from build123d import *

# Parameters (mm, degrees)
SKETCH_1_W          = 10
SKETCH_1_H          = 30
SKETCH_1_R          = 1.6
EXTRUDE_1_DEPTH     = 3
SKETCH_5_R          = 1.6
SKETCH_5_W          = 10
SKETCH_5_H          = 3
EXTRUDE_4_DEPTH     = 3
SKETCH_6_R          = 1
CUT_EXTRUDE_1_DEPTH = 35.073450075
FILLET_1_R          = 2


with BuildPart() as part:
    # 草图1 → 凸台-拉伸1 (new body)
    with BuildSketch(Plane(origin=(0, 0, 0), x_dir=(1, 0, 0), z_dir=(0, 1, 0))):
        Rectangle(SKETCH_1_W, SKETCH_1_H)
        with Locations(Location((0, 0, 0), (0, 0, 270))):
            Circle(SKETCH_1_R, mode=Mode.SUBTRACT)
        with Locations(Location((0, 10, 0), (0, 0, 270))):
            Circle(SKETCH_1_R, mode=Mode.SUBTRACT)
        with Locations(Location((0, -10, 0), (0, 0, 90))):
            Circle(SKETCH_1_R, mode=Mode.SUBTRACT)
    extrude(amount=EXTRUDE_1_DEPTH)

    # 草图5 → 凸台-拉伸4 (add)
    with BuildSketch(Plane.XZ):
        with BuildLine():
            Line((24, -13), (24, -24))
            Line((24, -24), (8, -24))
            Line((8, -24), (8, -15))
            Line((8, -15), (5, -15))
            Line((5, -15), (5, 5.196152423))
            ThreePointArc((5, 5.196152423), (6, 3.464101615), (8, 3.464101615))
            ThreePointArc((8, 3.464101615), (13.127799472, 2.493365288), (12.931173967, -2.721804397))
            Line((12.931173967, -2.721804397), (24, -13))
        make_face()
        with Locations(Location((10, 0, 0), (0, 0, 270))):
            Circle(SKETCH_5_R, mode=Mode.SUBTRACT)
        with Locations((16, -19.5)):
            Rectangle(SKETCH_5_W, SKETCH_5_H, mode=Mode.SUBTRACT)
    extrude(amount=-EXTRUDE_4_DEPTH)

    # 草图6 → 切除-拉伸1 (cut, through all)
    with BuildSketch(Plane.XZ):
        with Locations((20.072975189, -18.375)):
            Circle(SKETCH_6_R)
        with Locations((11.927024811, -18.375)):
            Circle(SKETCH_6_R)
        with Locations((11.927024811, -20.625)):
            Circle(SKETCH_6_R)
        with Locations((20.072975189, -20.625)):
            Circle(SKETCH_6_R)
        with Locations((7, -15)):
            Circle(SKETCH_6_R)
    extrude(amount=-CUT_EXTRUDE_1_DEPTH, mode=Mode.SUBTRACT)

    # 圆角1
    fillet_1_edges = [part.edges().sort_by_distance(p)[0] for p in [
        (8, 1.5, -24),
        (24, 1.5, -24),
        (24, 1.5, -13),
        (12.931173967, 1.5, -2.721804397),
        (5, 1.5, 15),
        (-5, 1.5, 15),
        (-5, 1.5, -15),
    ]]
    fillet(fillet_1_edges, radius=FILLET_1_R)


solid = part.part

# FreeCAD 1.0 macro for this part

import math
import FreeCAD as App
import Part
import Sketcher

V = App.Vector
Q = App.Units.Quantity


def edges_at(feature, points):
    """Names of the edges that pass closest to the given points."""
    edges = feature.Shape.Edges
    near = lambda p: min(range(len(edges)), key=lambda i: edges[i].distToShape(Part.Vertex(*p))[0])
    return sorted({f"Edge{near(p) + 1}" for p in points})

doc = App.newDocument("Part")
body = doc.addObject("PartDesign::Body", "Body")

# Sketch on XZ plane
sketch1 = doc.addObject("Sketcher::SketchObject", "Sketch")
body.addObject(sketch1)
sketch1.AttachmentSupport = (doc.XZ_Plane, [""])
sketch1.MapMode = "FlatFace"
sketch1.addGeometry(Part.LineSegment(V(-5, -15, 0), V(-5, 15, 0)), False)
sketch1.addGeometry(Part.LineSegment(V(-5, 15, 0), V(5, 15, 0)), False)
sketch1.addGeometry(Part.LineSegment(V(5, 15, 0), V(5, -15, 0)), False)
sketch1.addGeometry(Part.LineSegment(V(5, -15, 0), V(-5, -15, 0)), False)
sketch1.addGeometry(Part.Circle(V(0, 10, 0), V(0, 0, 1), 1.6), False)
sketch1.addGeometry(Part.Circle(V(0, 0, 0), V(0, 0, 1), 1.6), False)
sketch1.addGeometry(Part.Circle(V(0, -10, 0), V(0, 0, 1), 1.6), False)
sketch1.addConstraint(Sketcher.Constraint("Coincident", 0, 2, 1, 1))
sketch1.addConstraint(Sketcher.Constraint("Coincident", 1, 2, 2, 1))
sketch1.addConstraint(Sketcher.Constraint("Coincident", 2, 2, 3, 1))
sketch1.addConstraint(Sketcher.Constraint("Coincident", 3, 2, 0, 1))
sketch1.addConstraint(Sketcher.Constraint("Vertical", 0))
sketch1.addConstraint(Sketcher.Constraint("Horizontal", 1))
sketch1.addConstraint(Sketcher.Constraint("Vertical", 2))
sketch1.addConstraint(Sketcher.Constraint("Horizontal", 3))
sketch1.addConstraint(Sketcher.Constraint("Coincident", 5, 3, -1, 1))
sketch1.addConstraint(Sketcher.Constraint("Equal", 4, 5))
sketch1.addConstraint(Sketcher.Constraint("Equal", 5, 6))
sketch1.addConstraint(Sketcher.Constraint("Symmetric", 4, 3, 6, 3, -1, 1))
sketch1.addConstraint(Sketcher.Constraint("Symmetric", 0, 2, 2, 2, -1, 1))
sketch1.addConstraint(Sketcher.Constraint("PointOnObject", 4, 3, -2))
sketch1.addConstraint(Sketcher.Constraint("Diameter", 4, Q("3.2 mm")))
sketch1.addConstraint(Sketcher.Constraint("DistanceX", 1, 1, 1, 2, Q("10 mm")))
sketch1.addConstraint(Sketcher.Constraint("DistanceY", 0, 1, 0, 2, Q("30 mm")))
sketch1.addConstraint(Sketcher.Constraint("DistanceY", -1, 1, 4, 3, Q("10 mm")))
pad1 = doc.addObject("PartDesign::Pad", "Pad")
body.addObject(pad1)
pad1.Profile = sketch1
pad1.Length = 3
pad1.Reversed = True

# Sketch on XZ plane
sketch2 = doc.addObject("Sketcher::SketchObject", "Sketch001")
body.addObject(sketch2)
sketch2.AttachmentSupport = (doc.XZ_Plane, [""])
sketch2.MapMode = "FlatFace"
sketch2.addGeometry(Part.LineSegment(V(24, -24, 0), V(24, -13, 0)), False)
sketch2.addGeometry(Part.LineSegment(V(24, -13, 0), V(12.9, -2.7, 0)), False)
sketch2.addGeometry(Part.ArcOfCircle(Part.Circle(V(10, 0, 0), V(0, 0, 1), 4), math.radians(-43), math.radians(120)), False)
sketch2.addGeometry(Part.ArcOfCircle(Part.Circle(V(7, 5.2, 0), V(0, 0, 1), 2), math.radians(180), math.radians(300)), False)
sketch2.addGeometry(Part.LineSegment(V(5, 5.2, 0), V(5, -15, 0)), False)
sketch2.addGeometry(Part.LineSegment(V(5, -15, 0), V(8, -15, 0)), False)
sketch2.addGeometry(Part.LineSegment(V(8, -15, 0), V(8, -24, 0)), False)
sketch2.addGeometry(Part.LineSegment(V(8, -24, 0), V(24, -24, 0)), False)
sketch2.addGeometry(Part.LineSegment(V(11, -21, 0), V(11, -18, 0)), False)
sketch2.addGeometry(Part.LineSegment(V(11, -18, 0), V(21, -18, 0)), False)
sketch2.addGeometry(Part.LineSegment(V(21, -18, 0), V(21, -21, 0)), False)
sketch2.addGeometry(Part.LineSegment(V(21, -21, 0), V(11, -21, 0)), False)
sketch2.addGeometry(Part.Circle(V(10, 0, 0), V(0, 0, 1), 1.6), False)
sketch2.addConstraint(Sketcher.Constraint("Coincident", 0, 2, 1, 1))
sketch2.addConstraint(Sketcher.Constraint("Coincident", 1, 2, 2, 1))
sketch2.addConstraint(Sketcher.Constraint("Tangent", 2, 2, 3, 2))
sketch2.addConstraint(Sketcher.Constraint("Tangent", 3, 1, 4, 1))
sketch2.addConstraint(Sketcher.Constraint("Coincident", 4, 2, 5, 1))
sketch2.addConstraint(Sketcher.Constraint("Coincident", 5, 2, 6, 1))
sketch2.addConstraint(Sketcher.Constraint("Coincident", 6, 2, 7, 1))
sketch2.addConstraint(Sketcher.Constraint("Coincident", 7, 2, 0, 1))
sketch2.addConstraint(Sketcher.Constraint("Coincident", 8, 2, 9, 1))
sketch2.addConstraint(Sketcher.Constraint("Coincident", 9, 2, 10, 1))
sketch2.addConstraint(Sketcher.Constraint("Coincident", 10, 2, 11, 1))
sketch2.addConstraint(Sketcher.Constraint("Coincident", 11, 2, 8, 1))
sketch2.addConstraint(Sketcher.Constraint("Vertical", 0))
sketch2.addConstraint(Sketcher.Constraint("Vertical", 4))
sketch2.addConstraint(Sketcher.Constraint("Horizontal", 5))
sketch2.addConstraint(Sketcher.Constraint("Vertical", 6))
sketch2.addConstraint(Sketcher.Constraint("Horizontal", 7))
sketch2.addConstraint(Sketcher.Constraint("Vertical", 8))
sketch2.addConstraint(Sketcher.Constraint("Horizontal", 9))
sketch2.addConstraint(Sketcher.Constraint("Vertical", 10))
sketch2.addConstraint(Sketcher.Constraint("Horizontal", 11))
sketch2.addConstraint(Sketcher.Constraint("Coincident", 12, 3, 2, 3))
sketch2.addConstraint(Sketcher.Constraint("PointOnObject", 2, 3, -1))
sketch2.addConstraint(Sketcher.Constraint("Vertical", 2, 2, 5, 2))
sketch2.addConstraint(Sketcher.Constraint("Equal", 5, 8))
sketch2.addConstraint(Sketcher.Constraint("Radius", 2, Q("4 mm")))
sketch2.addConstraint(Sketcher.Constraint("Radius", 3, Q("2 mm")))
sketch2.addConstraint(Sketcher.Constraint("Diameter", 12, Q("3.2 mm")))
sketch2.addConstraint(Sketcher.Constraint("DistanceX", 5, 1, 5, 2, Q("3 mm")))
sketch2.addConstraint(Sketcher.Constraint("DistanceX", 7, 1, 7, 2, Q("16 mm")))
sketch2.addConstraint(Sketcher.Constraint("DistanceX", 9, 1, 9, 2, Q("10 mm")))
sketch2.addConstraint(Sketcher.Constraint("DistanceY", 0, 1, 0, 2, Q("11 mm")))
sketch2.addConstraint(Sketcher.Constraint("DistanceY", 6, 2, 6, 1, Q("9 mm")))
sketch2.addConstraint(Sketcher.Constraint("DistanceX", -1, 1, 2, 3, Q("10 mm")))
sketch2.addConstraint(Sketcher.Constraint("DistanceY", 0, 2, -1, 1, Q("13 mm")))
sketch2.addConstraint(Sketcher.Constraint("DistanceX", -1, 1, 8, 2, Q("11 mm")))
sketch2.addConstraint(Sketcher.Constraint("DistanceY", 8, 2, -1, 1, Q("18 mm")))
sketch2.addConstraint(Sketcher.Constraint("DistanceX", -1, 1, 1, 2, Q("12.931174 mm")))
pad2 = doc.addObject("PartDesign::Pad", "Pad001")
body.addObject(pad2)
pad2.Profile = sketch2
pad2.Length = 3
pad2.Reversed = True

# Sketch on XZ plane
sketch3 = doc.addObject("Sketcher::SketchObject", "Sketch002")
body.addObject(sketch3)
sketch3.AttachmentSupport = (doc.XZ_Plane, [""])
sketch3.MapMode = "FlatFace"
sketch3.addGeometry(Part.Circle(V(20.1, -18.4, 0), V(0, 0, 1), 1), False)
sketch3.addGeometry(Part.Circle(V(11.9, -18.4, 0), V(0, 0, 1), 1), False)
sketch3.addGeometry(Part.Circle(V(11.9, -20.6, 0), V(0, 0, 1), 1), False)
sketch3.addGeometry(Part.Circle(V(20.1, -20.6, 0), V(0, 0, 1), 1), False)
sketch3.addGeometry(Part.Circle(V(7, -15, 0), V(0, 0, 1), 1), False)
sketch3.addConstraint(Sketcher.Constraint("Equal", 0, 1))
sketch3.addConstraint(Sketcher.Constraint("Equal", 1, 2))
sketch3.addConstraint(Sketcher.Constraint("Equal", 2, 3))
sketch3.addConstraint(Sketcher.Constraint("Equal", 3, 4))
sketch3.addConstraint(Sketcher.Constraint("Horizontal", 0, 3, 1, 3))
sketch3.addConstraint(Sketcher.Constraint("Horizontal", 2, 3, 3, 3))
sketch3.addConstraint(Sketcher.Constraint("Vertical", 1, 3, 2, 3))
sketch3.addConstraint(Sketcher.Constraint("Vertical", 0, 3, 3, 3))
sketch3.addConstraint(Sketcher.Constraint("Diameter", 0, Q("2 mm")))
sketch3.addConstraint(Sketcher.Constraint("DistanceX", -1, 1, 4, 3, Q("7 mm")))
sketch3.addConstraint(Sketcher.Constraint("DistanceY", 4, 3, -1, 1, Q("15 mm")))
sketch3.addConstraint(Sketcher.Constraint("DistanceY", 2, 3, 1, 3, Q("2.25 mm")))
sketch3.addConstraint(Sketcher.Constraint("DistanceY", 0, 3, -1, 1, Q("18.375 mm")))
sketch3.addConstraint(Sketcher.Constraint("DistanceX", 1, 3, 0, 3, Q("8.14595 mm")))
sketch3.addConstraint(Sketcher.Constraint("DistanceX", -1, 1, 0, 3, Q("20.072975 mm")))
pocket1 = doc.addObject("PartDesign::Pocket", "Pocket")
body.addObject(pocket1)
pocket1.Profile = sketch3
pocket1.Type = "ThroughAll"
doc.recompute()

fillet = doc.addObject("PartDesign::Fillet", "Fillet")
body.addObject(fillet)
fillet.Base = (pocket1, edges_at(pocket1, [
    (8, 1.5, -24),
    (24, 1.5, -24),
    (24, 1.5, -13),
    (12.931, 1.5, -2.722),
    (5, 1.5, 15),
    (-5, 1.5, 15),
    (-5, 1.5, -15),
]))
fillet.Radius = 2

doc.recompute()
